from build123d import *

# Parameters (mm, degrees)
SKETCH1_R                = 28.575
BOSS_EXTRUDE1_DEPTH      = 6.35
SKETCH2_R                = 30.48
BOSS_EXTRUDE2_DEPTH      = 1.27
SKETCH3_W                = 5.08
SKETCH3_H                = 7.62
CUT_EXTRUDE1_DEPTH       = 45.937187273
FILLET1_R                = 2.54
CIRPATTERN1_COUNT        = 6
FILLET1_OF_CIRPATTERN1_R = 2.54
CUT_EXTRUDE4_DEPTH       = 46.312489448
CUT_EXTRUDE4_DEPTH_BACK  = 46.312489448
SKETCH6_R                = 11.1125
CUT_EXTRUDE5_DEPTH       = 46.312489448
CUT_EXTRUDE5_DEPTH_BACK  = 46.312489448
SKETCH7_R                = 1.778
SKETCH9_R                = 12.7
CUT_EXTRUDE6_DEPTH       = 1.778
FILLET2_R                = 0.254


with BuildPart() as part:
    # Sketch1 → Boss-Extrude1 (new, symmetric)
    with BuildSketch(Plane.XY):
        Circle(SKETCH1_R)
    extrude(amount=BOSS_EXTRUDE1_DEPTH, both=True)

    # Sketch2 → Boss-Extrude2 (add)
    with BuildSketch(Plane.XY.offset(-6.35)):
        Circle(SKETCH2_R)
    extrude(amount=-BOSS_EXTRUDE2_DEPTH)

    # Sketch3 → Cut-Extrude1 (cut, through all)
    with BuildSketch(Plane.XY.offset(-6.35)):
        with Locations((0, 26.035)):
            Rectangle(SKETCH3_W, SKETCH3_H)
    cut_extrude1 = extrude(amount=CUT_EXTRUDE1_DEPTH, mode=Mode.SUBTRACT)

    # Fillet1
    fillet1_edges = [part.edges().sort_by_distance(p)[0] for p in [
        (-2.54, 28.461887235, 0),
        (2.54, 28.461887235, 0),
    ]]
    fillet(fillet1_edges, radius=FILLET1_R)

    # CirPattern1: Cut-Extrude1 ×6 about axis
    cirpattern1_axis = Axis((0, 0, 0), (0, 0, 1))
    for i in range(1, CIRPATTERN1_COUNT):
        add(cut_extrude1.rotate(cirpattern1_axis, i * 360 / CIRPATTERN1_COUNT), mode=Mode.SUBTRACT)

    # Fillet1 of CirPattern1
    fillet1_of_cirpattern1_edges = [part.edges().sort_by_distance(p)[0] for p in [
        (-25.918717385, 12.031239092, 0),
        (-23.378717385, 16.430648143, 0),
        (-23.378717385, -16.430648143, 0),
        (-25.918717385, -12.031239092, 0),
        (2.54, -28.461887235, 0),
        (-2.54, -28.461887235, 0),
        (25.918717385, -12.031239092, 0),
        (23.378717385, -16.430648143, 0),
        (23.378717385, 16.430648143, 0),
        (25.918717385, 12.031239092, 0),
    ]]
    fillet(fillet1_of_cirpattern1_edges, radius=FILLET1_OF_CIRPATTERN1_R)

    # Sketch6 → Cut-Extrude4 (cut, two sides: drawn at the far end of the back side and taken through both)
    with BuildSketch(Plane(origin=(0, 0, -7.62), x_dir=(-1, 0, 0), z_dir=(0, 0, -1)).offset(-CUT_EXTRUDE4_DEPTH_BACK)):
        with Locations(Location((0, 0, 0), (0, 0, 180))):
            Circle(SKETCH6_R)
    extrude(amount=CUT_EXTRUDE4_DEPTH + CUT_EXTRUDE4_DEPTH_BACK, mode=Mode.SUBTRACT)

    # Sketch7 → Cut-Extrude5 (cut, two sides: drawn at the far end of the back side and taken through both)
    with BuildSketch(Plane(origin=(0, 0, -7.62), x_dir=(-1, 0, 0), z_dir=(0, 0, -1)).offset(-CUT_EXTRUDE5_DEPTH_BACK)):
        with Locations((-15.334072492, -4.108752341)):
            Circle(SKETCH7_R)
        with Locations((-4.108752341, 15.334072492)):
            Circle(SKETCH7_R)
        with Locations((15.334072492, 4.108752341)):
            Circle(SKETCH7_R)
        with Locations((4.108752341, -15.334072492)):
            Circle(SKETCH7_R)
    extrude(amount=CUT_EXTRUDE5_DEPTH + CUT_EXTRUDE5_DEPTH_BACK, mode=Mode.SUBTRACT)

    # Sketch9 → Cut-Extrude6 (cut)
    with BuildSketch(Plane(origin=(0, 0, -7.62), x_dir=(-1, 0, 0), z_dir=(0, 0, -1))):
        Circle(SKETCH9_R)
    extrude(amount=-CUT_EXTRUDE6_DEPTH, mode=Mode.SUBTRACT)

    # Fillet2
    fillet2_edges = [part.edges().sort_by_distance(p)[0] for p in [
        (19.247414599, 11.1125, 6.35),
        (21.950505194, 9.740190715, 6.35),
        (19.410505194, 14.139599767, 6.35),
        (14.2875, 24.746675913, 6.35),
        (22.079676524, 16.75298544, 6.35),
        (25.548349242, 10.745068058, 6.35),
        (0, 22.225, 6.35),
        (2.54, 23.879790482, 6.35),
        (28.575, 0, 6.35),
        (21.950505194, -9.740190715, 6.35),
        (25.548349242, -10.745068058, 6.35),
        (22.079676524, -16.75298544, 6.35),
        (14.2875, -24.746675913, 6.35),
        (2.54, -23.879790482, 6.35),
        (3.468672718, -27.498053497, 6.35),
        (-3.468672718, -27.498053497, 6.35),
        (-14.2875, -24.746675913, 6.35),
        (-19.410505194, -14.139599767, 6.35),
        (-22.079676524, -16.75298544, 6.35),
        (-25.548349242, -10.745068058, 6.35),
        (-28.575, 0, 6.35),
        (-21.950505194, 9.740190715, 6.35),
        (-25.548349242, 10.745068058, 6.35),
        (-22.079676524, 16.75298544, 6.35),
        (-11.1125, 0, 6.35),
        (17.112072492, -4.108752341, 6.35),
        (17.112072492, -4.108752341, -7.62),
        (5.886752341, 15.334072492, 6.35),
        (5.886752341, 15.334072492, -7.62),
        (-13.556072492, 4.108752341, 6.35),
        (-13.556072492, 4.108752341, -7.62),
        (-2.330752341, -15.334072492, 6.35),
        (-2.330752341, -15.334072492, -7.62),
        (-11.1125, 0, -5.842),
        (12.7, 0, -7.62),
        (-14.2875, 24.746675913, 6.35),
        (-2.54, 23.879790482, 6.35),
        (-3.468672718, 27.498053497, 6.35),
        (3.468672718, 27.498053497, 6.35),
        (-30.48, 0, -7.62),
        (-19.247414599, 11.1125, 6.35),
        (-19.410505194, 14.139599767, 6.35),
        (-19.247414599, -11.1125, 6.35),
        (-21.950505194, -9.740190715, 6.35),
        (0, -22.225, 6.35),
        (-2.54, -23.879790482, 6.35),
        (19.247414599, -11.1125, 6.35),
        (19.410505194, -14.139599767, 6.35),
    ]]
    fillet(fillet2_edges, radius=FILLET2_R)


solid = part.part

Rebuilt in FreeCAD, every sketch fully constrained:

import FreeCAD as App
import Part
import Sketcher
from FreeCAD import Vector
Q = App.Units.Quantity


def edges_at(feature, points):
    """Names of the edges that pass closest to the given points."""
    edges = feature.Shape.Edges
    near = lambda p: min(range(len(edges)), key=lambda i: edges[i].distToShape(Part.Vertex(*p))[0])
    return sorted({f"Edge{near(p) + 1}" for p in points})


def add_polygon(sketch, points):
    """Adds a closed chain of lines whose ends are joined by coincident constraints."""
    first, n = sketch.GeometryCount, len(points)
    for a, b in zip(points, points[1:] + points[:1]):
        sketch.addGeometry(Part.LineSegment(App.Vector(*a, 0), App.Vector(*b, 0)), False)
    for i in range(n):
        sketch.addConstraint(Sketcher.Constraint("Coincident", first + i, 2, first + (i + 1) % n, 1))

doc = App.newDocument("Part")
body = doc.addObject("PartDesign::Body", "Body")

sketch1 = body.newObject("Sketcher::SketchObject", "Sketch")
sketch1.AttachmentSupport = (doc.getObject("XY_Plane"), [""])
sketch1.MapMode = "FlatFace"
sketch1.addGeometry(Part.Circle(Vector(0, 0, 0), Vector(0, 0, 1), 28.575), False)
sketch1.addConstraint([
    Sketcher.Constraint("Coincident", 0, 3, -1, 1),
    Sketcher.Constraint("Diameter", 0, Q("2.25 in")),
])
pad1 = body.newObject("PartDesign::Pad", "Pad")
pad1.Profile = sketch1
pad1.Length = Q("0.5 in")
pad1.Midplane = True

sketch2 = body.newObject("Sketcher::SketchObject", "Sketch001")
sketch2.AttachmentSupport = (doc.getObject("XY_Plane"), [""])
sketch2.MapMode = "FlatFace"
sketch2.AttachmentOffset = App.Placement(Vector(0, 0, -0.25 * 25.4), App.Rotation())
sketch2.addGeometry(Part.Circle(Vector(0, 0, 0), Vector(0, 0, 1), 30.48), False)
sketch2.addConstraint([
    Sketcher.Constraint("Coincident", 0, 3, -1, 1),
    Sketcher.Constraint("Diameter", 0, Q("2.4 in")),
])
pad2 = body.newObject("PartDesign::Pad", "Pad001")
pad2.Profile = sketch2
pad2.Length = Q("0.05 in")
pad2.Reversed = True

sketch3 = body.newObject("Sketcher::SketchObject", "Sketch002")
sketch3.AttachmentSupport = (doc.getObject("XY_Plane"), [""])
sketch3.MapMode = "FlatFace"
sketch3.AttachmentOffset = App.Placement(Vector(0, 0, -0.25 * 25.4), App.Rotation())
add_polygon(sketch3, [(-2.54, 29.845), (-2.54, 22.225), (2.54, 22.225), (2.54, 29.845)])
sketch3.addConstraint([
    Sketcher.Constraint("Vertical", 0),
    Sketcher.Constraint("Horizontal", 1),
    Sketcher.Constraint("Vertical", 2),
    Sketcher.Constraint("Horizontal", 3),
    Sketcher.Constraint("DistanceX", 1, 1, 1, 2, Q("0.2 in")),
    Sketcher.Constraint("DistanceY", 0, 2, 0, 1, Q("0.3 in")),
    Sketcher.Constraint("DistanceX", 0, 2, -1, 1, Q("0.1 in")),
    Sketcher.Constraint("DistanceY", -1, 1, 0, 2, Q("0.875 in")),
])
pocket1 = body.newObject("PartDesign::Pocket", "Pocket")
pocket1.Profile = sketch3
pocket1.Type = "ThroughAll"
pocket1.Reversed = True
doc.recompute()

fillet = body.newObject("PartDesign::Fillet", "Fillet")
fillet.Base = (pocket1, edges_at(pocket1, [(-2.54, 28.462, 0), (2.54, 28.462, 0)]))
fillet.Radius = Q("0.1 in")
doc.recompute()

polarpattern = body.newObject("PartDesign::PolarPattern", "PolarPattern")
polarpattern.Originals = [pocket1]
polarpattern.Axis = (doc.getObject("Z_Axis"), [""])
polarpattern.Angle = 360
polarpattern.Occurrences = 6
body.Tip = polarpattern
doc.recompute()

fillet2 = body.newObject("PartDesign::Fillet", "Fillet001")
fillet2.Base = (polarpattern, edges_at(polarpattern, [
    (-25.919, 12.031, 0),
    (-23.379, 16.431, 0),
    (-23.379, -16.431, 0),
    (-25.919, -12.031, 0),
    (2.54, -28.462, 0),
    (-2.54, -28.462, 0),
    (25.919, -12.031, 0),
    (23.379, -16.431, 0),
    (23.379, 16.431, 0),
    (25.919, 12.031, 0),
]))
fillet2.Radius = Q("0.1 in")

sketch4 = body.newObject("Sketcher::SketchObject", "Sketch003")
sketch4.AttachmentSupport = (doc.getObject("XY_Plane"), [""])
sketch4.MapMode = "FlatFace"
sketch4.AttachmentOffset = App.Placement(Vector(0, 0, -0.3 * 25.4), App.Rotation())
sketch4.addGeometry(Part.Circle(Vector(0, 0, 0), Vector(0, 0, 1), 11.1125), False)
sketch4.addConstraint([
    Sketcher.Constraint("Coincident", 0, 3, -1, 1),
    Sketcher.Constraint("Diameter", 0, Q("0.875 in")),
])
pocket2 = body.newObject("PartDesign::Pocket", "Pocket001")
pocket2.Profile = sketch4
pocket2.Type = "ThroughAll"
pocket2.Midplane = True

sketch5 = body.newObject("Sketcher::SketchObject", "Sketch004")
sketch5.AttachmentSupport = (doc.getObject("XY_Plane"), [""])
sketch5.MapMode = "FlatFace"
sketch5.AttachmentOffset = App.Placement(Vector(0, 0, -0.3 * 25.4), App.Rotation())
sketch5.addGeometry([
    Part.Circle(Vector(15.334072, -4.108752, 0), Vector(0, 0, 1), 1.778),
    Part.Circle(Vector(4.108752, 15.334072, 0), Vector(0, 0, 1), 1.778),
    Part.Circle(Vector(-15.334072, 4.108752, 0), Vector(0, 0, 1), 1.778),
    Part.Circle(Vector(-4.108752, -15.334072, 0), Vector(0, 0, 1), 1.778),
], False)
sketch5.addConstraint([
    Sketcher.Constraint("Equal", 0, 1),
    Sketcher.Constraint("Equal", 1, 2),
    Sketcher.Constraint("Equal", 2, 3),
    Sketcher.Constraint("Symmetric", 0, 3, 2, 3, -1, 1),
    Sketcher.Constraint("Symmetric", 1, 3, 3, 3, -1, 1),
    Sketcher.Constraint("Diameter", 0, Q("0.14 in")),
    Sketcher.Constraint("DistanceX", 1, 3, 0, 3, 11.22532),
    Sketcher.Constraint("DistanceY", 2, 3, 1, 3, 11.22532),
    Sketcher.Constraint("DistanceX", -1, 1, 0, 3, 15.334072),
    Sketcher.Constraint("DistanceY", 0, 3, -1, 1, 4.108752),
])
pocket3 = body.newObject("PartDesign::Pocket", "Pocket002")
pocket3.Profile = sketch5
pocket3.Type = "ThroughAll"
pocket3.Midplane = True

sketch6 = body.newObject("Sketcher::SketchObject", "Sketch005")
sketch6.AttachmentSupport = (doc.getObject("XY_Plane"), [""])
sketch6.MapMode = "FlatFace"
sketch6.AttachmentOffset = App.Placement(Vector(0, 0, -0.3 * 25.4), App.Rotation())
sketch6.addGeometry(Part.Circle(Vector(0, 0, 0), Vector(0, 0, 1), 12.7), False)
sketch6.addConstraint([
    Sketcher.Constraint("Coincident", 0, 3, -1, 1),
    Sketcher.Constraint("Diameter", 0, Q("1 in")),
])
pocket4 = body.newObject("PartDesign::Pocket", "Pocket003")
pocket4.Profile = sketch6
pocket4.Length = Q("0.07 in")
pocket4.Reversed = True
doc.recompute()

fillet3 = body.newObject("PartDesign::Fillet", "Fillet002")
fillet3.Base = (pocket4, edges_at(pocket4, [
    (19.247, 11.113, 6.35),
    (21.951, 9.74, 6.35),
    (19.411, 14.14, 6.35),
    (14.287, 24.747, 6.35),
    (22.08, 16.753, 6.35),
    (25.548, 10.745, 6.35),
    (0, 22.225, 6.35),
    (2.54, 23.88, 6.35),
    (28.575, 0, 6.35),
    (21.951, -9.74, 6.35),
    (25.548, -10.745, 6.35),
    (22.08, -16.753, 6.35),
    (14.287, -24.747, 6.35),
    (2.54, -23.88, 6.35),
    (3.469, -27.498, 6.35),
    (-3.469, -27.498, 6.35),
    (-14.287, -24.747, 6.35),
    (-19.411, -14.14, 6.35),
    (-22.08, -16.753, 6.35),
    (-25.548, -10.745, 6.35),
    (-28.575, 0, 6.35),
    (-21.951, 9.74, 6.35),
    (-25.548, 10.745, 6.35),
    (-22.08, 16.753, 6.35),
    (-11.113, 0, 6.35),
    (17.112, -4.109, 6.35),
    (17.112, -4.109, -7.62),
    (5.887, 15.334, 6.35),
    (5.887, 15.334, -7.62),
    (-13.556, 4.109, 6.35),
    (-13.556, 4.109, -7.62),
    (-2.331, -15.334, 6.35),
    (-2.331, -15.334, -7.62),
    (-11.113, 0, -5.842),
    (12.7, 0, -7.62),
    (-14.287, 24.747, 6.35),
    (-2.54, 23.88, 6.35),
    (-3.469, 27.498, 6.35),
    (3.469, 27.498, 6.35),
    (-30.48, 0, -7.62),
    (-19.247, 11.113, 6.35),
    (-19.411, 14.14, 6.35),
    (-19.247, -11.113, 6.35),
    (-21.951, -9.74, 6.35),
    (0, -22.225, 6.35),
    (-2.54, -23.88, 6.35),
    (19.247, -11.113, 6.35),
    (19.411, -14.14, 6.35),
]))
fillet3.Radius = Q("0.01 in")

doc.recompute()
